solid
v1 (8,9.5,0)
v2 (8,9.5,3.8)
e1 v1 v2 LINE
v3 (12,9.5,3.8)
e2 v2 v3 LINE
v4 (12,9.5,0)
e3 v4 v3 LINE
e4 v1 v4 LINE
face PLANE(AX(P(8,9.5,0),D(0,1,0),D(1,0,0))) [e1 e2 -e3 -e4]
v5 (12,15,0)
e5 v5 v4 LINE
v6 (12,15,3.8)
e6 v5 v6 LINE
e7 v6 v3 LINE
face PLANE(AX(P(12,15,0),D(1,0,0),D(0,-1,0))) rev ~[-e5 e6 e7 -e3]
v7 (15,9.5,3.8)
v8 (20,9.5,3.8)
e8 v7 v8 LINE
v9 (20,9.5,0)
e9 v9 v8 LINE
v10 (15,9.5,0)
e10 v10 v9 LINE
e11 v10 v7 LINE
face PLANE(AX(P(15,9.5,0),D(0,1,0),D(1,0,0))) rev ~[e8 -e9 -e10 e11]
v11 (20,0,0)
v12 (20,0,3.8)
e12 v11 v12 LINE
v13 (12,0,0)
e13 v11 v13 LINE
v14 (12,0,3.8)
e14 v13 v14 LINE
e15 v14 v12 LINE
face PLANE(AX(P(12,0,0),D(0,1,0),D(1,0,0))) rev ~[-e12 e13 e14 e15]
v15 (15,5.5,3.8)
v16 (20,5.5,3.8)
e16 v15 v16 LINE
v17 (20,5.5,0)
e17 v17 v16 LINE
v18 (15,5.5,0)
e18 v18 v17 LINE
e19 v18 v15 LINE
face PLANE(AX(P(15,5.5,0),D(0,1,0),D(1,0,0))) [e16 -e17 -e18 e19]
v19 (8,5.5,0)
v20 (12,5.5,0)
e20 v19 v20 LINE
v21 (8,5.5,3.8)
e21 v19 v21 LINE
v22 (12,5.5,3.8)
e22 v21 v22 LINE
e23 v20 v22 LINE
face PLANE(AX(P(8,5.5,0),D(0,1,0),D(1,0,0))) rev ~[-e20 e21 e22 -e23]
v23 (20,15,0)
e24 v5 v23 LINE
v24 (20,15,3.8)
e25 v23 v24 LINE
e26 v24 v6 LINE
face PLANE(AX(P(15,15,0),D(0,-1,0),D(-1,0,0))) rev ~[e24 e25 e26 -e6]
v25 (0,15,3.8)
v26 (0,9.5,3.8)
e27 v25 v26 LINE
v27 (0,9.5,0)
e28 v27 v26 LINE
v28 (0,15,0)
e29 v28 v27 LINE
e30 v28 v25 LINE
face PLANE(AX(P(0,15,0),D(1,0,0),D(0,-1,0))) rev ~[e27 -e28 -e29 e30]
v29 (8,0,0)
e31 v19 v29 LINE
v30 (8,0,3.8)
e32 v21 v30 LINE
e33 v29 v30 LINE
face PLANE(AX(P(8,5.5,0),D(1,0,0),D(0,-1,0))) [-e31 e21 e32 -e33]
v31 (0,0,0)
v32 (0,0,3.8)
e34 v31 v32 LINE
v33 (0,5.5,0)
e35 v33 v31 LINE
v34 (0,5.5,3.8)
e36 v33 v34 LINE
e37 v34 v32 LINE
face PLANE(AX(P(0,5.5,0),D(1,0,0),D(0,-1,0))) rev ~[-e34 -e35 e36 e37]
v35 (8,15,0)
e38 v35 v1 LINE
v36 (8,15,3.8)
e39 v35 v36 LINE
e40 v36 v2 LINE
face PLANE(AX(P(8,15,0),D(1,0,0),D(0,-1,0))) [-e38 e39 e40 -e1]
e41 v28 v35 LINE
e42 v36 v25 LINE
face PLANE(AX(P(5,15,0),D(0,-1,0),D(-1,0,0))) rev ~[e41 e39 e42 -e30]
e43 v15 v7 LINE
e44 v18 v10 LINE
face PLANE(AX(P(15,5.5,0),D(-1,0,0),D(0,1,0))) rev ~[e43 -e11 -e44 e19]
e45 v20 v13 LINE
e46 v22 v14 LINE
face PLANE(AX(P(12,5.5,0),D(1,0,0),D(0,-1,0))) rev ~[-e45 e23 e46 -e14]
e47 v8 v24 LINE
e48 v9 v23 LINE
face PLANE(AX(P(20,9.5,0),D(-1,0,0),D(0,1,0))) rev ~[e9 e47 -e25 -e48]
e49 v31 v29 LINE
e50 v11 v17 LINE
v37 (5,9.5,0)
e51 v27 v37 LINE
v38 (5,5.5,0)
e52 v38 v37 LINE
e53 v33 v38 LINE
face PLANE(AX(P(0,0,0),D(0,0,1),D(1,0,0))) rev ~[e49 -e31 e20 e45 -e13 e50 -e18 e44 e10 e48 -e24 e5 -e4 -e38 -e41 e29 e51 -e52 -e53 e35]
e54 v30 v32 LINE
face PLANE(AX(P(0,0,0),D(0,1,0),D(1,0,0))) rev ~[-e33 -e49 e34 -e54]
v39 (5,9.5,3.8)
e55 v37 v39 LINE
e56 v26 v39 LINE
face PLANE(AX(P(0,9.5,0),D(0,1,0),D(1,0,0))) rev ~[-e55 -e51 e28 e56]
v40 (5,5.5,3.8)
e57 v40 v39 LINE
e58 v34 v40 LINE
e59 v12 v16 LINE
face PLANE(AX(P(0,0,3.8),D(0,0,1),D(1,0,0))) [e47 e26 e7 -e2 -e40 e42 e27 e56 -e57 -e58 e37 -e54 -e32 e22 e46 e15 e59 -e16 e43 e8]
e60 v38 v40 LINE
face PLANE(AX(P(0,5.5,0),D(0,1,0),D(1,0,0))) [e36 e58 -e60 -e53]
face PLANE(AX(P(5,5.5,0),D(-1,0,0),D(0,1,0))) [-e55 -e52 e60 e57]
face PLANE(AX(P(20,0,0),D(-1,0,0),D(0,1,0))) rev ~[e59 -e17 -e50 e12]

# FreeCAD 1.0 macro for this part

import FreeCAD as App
import Part
import Sketcher

doc = App.newDocument("Part")
body = doc.addObject("PartDesign::Body", "Body")

# Sketch on XY plane
sketch1 = body.newObject("Sketcher::SketchObject", "Sketch")
sketch1.AttachmentSupport = (doc.getObject("XY_Plane"), [""])
sketch1.MapMode = "FlatFace"
sketch1.addGeometry([
    Part.LineSegment(App.Vector(0, 5.5, 0), App.Vector(0, 0, 0)),  # 0
    Part.LineSegment(App.Vector(0, 0, 0), App.Vector(8, 0, 0)),  # 1
    Part.LineSegment(App.Vector(8, 0, 0), App.Vector(8, 5.5, 0)),  # 2
    Part.LineSegment(App.Vector(8, 5.5, 0), App.Vector(12, 5.5, 0)),  # 3
    Part.LineSegment(App.Vector(12, 5.5, 0), App.Vector(12, 0, 0)),  # 4
    Part.LineSegment(App.Vector(12, 0, 0), App.Vector(20, 0, 0)),  # 5
    Part.LineSegment(App.Vector(20, 0, 0), App.Vector(20, 5.5, 0)),  # 6
    Part.LineSegment(App.Vector(20, 5.5, 0), App.Vector(15, 5.5, 0)),  # 7
    Part.LineSegment(App.Vector(15, 5.5, 0), App.Vector(15, 9.5, 0)),  # 8
    Part.LineSegment(App.Vector(15, 9.5, 0), App.Vector(20, 9.5, 0)),  # 9
    Part.LineSegment(App.Vector(20, 9.5, 0), App.Vector(20, 15, 0)),  # 10
    Part.LineSegment(App.Vector(20, 15, 0), App.Vector(12, 15, 0)),  # 11
    Part.LineSegment(App.Vector(12, 15, 0), App.Vector(12, 9.5, 0)),  # 12
    Part.LineSegment(App.Vector(12, 9.5, 0), App.Vector(8, 9.5, 0)),  # 13
    Part.LineSegment(App.Vector(8, 9.5, 0), App.Vector(8, 15, 0)),  # 14
    Part.LineSegment(App.Vector(8, 15, 0), App.Vector(0, 15, 0)),  # 15
    Part.LineSegment(App.Vector(0, 15, 0), App.Vector(0, 9.5, 0)),  # 16
    Part.LineSegment(App.Vector(0, 9.5, 0), App.Vector(5, 9.5, 0)),  # 17
    Part.LineSegment(App.Vector(5, 9.5, 0), App.Vector(5, 5.5, 0)),  # 18
    Part.LineSegment(App.Vector(5, 5.5, 0), App.Vector(0, 5.5, 0)),  # 19
], False)
sketch1.addConstraint([
    Sketcher.Constraint("Coincident", 0, 2, 1, 1),
    Sketcher.Constraint("Coincident", 1, 2, 2, 1),
    Sketcher.Constraint("Coincident", 2, 2, 3, 1),
    Sketcher.Constraint("Coincident", 3, 2, 4, 1),
    Sketcher.Constraint("Coincident", 4, 2, 5, 1),
    Sketcher.Constraint("Coincident", 5, 2, 6, 1),
    Sketcher.Constraint("Coincident", 6, 2, 7, 1),
    Sketcher.Constraint("Coincident", 7, 2, 8, 1),
    Sketcher.Constraint("Coincident", 8, 2, 9, 1),
    Sketcher.Constraint("Coincident", 9, 2, 10, 1),
    Sketcher.Constraint("Coincident", 10, 2, 11, 1),
    Sketcher.Constraint("Coincident", 11, 2, 12, 1),
    Sketcher.Constraint("Coincident", 12, 2, 13, 1),
    Sketcher.Constraint("Coincident", 13, 2, 14, 1),
    Sketcher.Constraint("Coincident", 14, 2, 15, 1),
    Sketcher.Constraint("Coincident", 15, 2, 16, 1),
    Sketcher.Constraint("Coincident", 16, 2, 17, 1),
    Sketcher.Constraint("Coincident", 17, 2, 18, 1),
    Sketcher.Constraint("Coincident", 18, 2, 19, 1),
    Sketcher.Constraint("Coincident", 19, 2, 0, 1),
    Sketcher.Constraint("Vertical", 0),
    Sketcher.Constraint("Horizontal", 1),
    Sketcher.Constraint("Vertical", 2),
    Sketcher.Constraint("Horizontal", 3),
    Sketcher.Constraint("Vertical", 4),
    Sketcher.Constraint("Horizontal", 5),
    Sketcher.Constraint("Vertical", 6),
    Sketcher.Constraint("Horizontal", 7),
    Sketcher.Constraint("Vertical", 8),
    Sketcher.Constraint("Horizontal", 9),
    Sketcher.Constraint("Vertical", 10),
    Sketcher.Constraint("Horizontal", 11),
    Sketcher.Constraint("Vertical", 12),
    Sketcher.Constraint("Horizontal", 13),
    Sketcher.Constraint("Vertical", 14),
    Sketcher.Constraint("Horizontal", 15),
    Sketcher.Constraint("Vertical", 16),
    Sketcher.Constraint("Horizontal", 17),
    Sketcher.Constraint("Vertical", 18),
    Sketcher.Constraint("Horizontal", 19),
    Sketcher.Constraint("Coincident", 0, 2, -1, 1),
    Sketcher.Constraint("PointOnObject", 4, 2, -1),
    Sketcher.Constraint("PointOnObject", 15, 2, -2),
    Sketcher.Constraint("Horizontal", 3, 2, 6, 2),
    Sketcher.Constraint("Horizontal", 9, 2, 12, 2),
    Sketcher.Constraint("Horizontal", 11, 2, 14, 2),
    Sketcher.Constraint("Horizontal", 13, 2, 16, 2),
    Sketcher.Constraint("Horizontal", 7, 2, 18, 2),
    Sketcher.Constraint("Vertical", 6, 2, 9, 2),
    Sketcher.Constraint("Vertical", 4, 2, 11, 2),
    Sketcher.Constraint("Vertical", 2, 2, 13, 2),
    Sketcher.Constraint("Equal", 1, 5),
    Sketcher.Constraint("Equal", 9, 17),
    Sketcher.Constraint("Equal", 13, 8),
    Sketcher.Constraint("Equal", 6, 10),
    Sketcher.Constraint("DistanceX", 1, 1, 1, 2, 8.0),
    Sketcher.Constraint("DistanceX", 3, 1, 3, 2, 4.0),
    Sketcher.Constraint("DistanceX", 7, 2, 7, 1, 5.0),
    Sketcher.Constraint("DistanceY", 0, 2, 0, 1, 5.5),
])
pad1 = body.newObject("PartDesign::Pad", "Pad")
pad1.Profile = sketch1
pad1.Length = 3.8

doc.recompute()
